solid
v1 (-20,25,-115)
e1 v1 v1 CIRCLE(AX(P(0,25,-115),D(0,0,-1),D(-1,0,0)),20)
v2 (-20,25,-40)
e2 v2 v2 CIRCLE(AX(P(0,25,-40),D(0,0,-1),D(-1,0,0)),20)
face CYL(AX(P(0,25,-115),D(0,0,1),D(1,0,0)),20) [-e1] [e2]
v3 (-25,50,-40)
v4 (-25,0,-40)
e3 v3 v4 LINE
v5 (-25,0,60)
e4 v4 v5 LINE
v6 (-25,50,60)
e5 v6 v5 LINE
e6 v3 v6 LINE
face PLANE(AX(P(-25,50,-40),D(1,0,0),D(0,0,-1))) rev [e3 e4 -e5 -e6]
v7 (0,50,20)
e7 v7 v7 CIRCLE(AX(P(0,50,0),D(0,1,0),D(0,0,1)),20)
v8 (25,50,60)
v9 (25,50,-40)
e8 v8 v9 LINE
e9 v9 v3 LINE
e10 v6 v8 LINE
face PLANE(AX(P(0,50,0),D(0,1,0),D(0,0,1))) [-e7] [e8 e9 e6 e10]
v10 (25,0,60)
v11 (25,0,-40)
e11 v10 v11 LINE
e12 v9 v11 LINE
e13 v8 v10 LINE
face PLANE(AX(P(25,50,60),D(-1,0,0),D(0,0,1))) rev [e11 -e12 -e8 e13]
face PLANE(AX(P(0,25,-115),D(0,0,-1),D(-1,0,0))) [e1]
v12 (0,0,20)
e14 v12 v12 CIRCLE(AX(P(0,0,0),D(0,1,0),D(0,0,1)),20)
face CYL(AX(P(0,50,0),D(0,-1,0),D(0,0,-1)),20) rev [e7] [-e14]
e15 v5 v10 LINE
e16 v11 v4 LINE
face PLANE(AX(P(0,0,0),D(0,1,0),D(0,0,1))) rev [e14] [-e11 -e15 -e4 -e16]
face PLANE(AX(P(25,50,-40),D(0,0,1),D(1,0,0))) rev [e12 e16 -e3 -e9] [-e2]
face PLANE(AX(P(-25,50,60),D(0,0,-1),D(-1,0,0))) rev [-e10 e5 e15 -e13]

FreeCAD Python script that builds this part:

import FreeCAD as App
import Part
import Sketcher

doc = App.newDocument("Part")
body = doc.addObject("PartDesign::Body", "Body")

sketch1 = doc.addObject("Sketcher::SketchObject", "Sketch")
body.addObject(sketch1)
sketch1.AttachmentSupport = (doc.XZ_Plane, [""])
sketch1.MapMode = "FlatFace"
sketch1.addGeometry(Part.LineSegment(App.Vector(-25, -40, 0), App.Vector(-25, 60, 0)), False)
sketch1.addGeometry(Part.LineSegment(App.Vector(-25, 60, 0), App.Vector(25, 60, 0)), False)
sketch1.addGeometry(Part.LineSegment(App.Vector(25, 60, 0), App.Vector(25, -40, 0)), False)
sketch1.addGeometry(Part.LineSegment(App.Vector(25, -40, 0), App.Vector(-25, -40, 0)), False)
sketch1.addGeometry(Part.Circle(App.Vector(0, 0, 0), App.Vector(0, 0, 1), 20), False)
sketch1.addConstraint(Sketcher.Constraint("Coincident", 0, 2, 1, 1))
sketch1.addConstraint(Sketcher.Constraint("Coincident", 1, 2, 2, 1))
sketch1.addConstraint(Sketcher.Constraint("Coincident", 2, 2, 3, 1))
sketch1.addConstraint(Sketcher.Constraint("Coincident", 3, 2, 0, 1))
sketch1.addConstraint(Sketcher.Constraint("Vertical", 0))
sketch1.addConstraint(Sketcher.Constraint("Horizontal", 1))
sketch1.addConstraint(Sketcher.Constraint("Vertical", 2))
sketch1.addConstraint(Sketcher.Constraint("Horizontal", 3))
sketch1.addConstraint(Sketcher.Constraint("Coincident", 4, 3, -1, 1))
sketch1.addConstraint(Sketcher.Constraint("Diameter", 4, 40.0))
sketch1.addConstraint(Sketcher.Constraint("DistanceX", 1, 1, 1, 2, 50.0))
sketch1.addConstraint(Sketcher.Constraint("DistanceY", 0, 1, 0, 2, 100.0))
sketch1.addConstraint(Sketcher.Constraint("DistanceX", 0, 2, -1, 1, 25.0))
sketch1.addConstraint(Sketcher.Constraint("DistanceY", -1, 1, 0, 2, 60.0))
pad1 = doc.addObject("PartDesign::Pad", "Pad")
body.addObject(pad1)
pad1.Profile = sketch1
pad1.Length = 50
pad1.Reversed = True

sketch2 = doc.addObject("Sketcher::SketchObject", "Sketch001")
body.addObject(sketch2)
sketch2.AttachmentSupport = (doc.XY_Plane, [""])
sketch2.MapMode = "FlatFace"
sketch2.AttachmentOffset = App.Placement(App.Vector(0, 0, -40), App.Rotation())
sketch2.addGeometry(Part.Circle(App.Vector(0, 25, 0), App.Vector(0, 0, 1), 20), False)
sketch2.addConstraint(Sketcher.Constraint("PointOnObject", 0, 3, -2))
sketch2.addConstraint(Sketcher.Constraint("Diameter", 0, 40.0))
sketch2.addConstraint(Sketcher.Constraint("DistanceY", -1, 1, 0, 3, 25.0))
pad2 = doc.addObject("PartDesign::Pad", "Pad001")
body.addObject(pad2)
pad2.Profile = sketch2
pad2.Length = 75
pad2.Reversed = True

doc.recompute()
